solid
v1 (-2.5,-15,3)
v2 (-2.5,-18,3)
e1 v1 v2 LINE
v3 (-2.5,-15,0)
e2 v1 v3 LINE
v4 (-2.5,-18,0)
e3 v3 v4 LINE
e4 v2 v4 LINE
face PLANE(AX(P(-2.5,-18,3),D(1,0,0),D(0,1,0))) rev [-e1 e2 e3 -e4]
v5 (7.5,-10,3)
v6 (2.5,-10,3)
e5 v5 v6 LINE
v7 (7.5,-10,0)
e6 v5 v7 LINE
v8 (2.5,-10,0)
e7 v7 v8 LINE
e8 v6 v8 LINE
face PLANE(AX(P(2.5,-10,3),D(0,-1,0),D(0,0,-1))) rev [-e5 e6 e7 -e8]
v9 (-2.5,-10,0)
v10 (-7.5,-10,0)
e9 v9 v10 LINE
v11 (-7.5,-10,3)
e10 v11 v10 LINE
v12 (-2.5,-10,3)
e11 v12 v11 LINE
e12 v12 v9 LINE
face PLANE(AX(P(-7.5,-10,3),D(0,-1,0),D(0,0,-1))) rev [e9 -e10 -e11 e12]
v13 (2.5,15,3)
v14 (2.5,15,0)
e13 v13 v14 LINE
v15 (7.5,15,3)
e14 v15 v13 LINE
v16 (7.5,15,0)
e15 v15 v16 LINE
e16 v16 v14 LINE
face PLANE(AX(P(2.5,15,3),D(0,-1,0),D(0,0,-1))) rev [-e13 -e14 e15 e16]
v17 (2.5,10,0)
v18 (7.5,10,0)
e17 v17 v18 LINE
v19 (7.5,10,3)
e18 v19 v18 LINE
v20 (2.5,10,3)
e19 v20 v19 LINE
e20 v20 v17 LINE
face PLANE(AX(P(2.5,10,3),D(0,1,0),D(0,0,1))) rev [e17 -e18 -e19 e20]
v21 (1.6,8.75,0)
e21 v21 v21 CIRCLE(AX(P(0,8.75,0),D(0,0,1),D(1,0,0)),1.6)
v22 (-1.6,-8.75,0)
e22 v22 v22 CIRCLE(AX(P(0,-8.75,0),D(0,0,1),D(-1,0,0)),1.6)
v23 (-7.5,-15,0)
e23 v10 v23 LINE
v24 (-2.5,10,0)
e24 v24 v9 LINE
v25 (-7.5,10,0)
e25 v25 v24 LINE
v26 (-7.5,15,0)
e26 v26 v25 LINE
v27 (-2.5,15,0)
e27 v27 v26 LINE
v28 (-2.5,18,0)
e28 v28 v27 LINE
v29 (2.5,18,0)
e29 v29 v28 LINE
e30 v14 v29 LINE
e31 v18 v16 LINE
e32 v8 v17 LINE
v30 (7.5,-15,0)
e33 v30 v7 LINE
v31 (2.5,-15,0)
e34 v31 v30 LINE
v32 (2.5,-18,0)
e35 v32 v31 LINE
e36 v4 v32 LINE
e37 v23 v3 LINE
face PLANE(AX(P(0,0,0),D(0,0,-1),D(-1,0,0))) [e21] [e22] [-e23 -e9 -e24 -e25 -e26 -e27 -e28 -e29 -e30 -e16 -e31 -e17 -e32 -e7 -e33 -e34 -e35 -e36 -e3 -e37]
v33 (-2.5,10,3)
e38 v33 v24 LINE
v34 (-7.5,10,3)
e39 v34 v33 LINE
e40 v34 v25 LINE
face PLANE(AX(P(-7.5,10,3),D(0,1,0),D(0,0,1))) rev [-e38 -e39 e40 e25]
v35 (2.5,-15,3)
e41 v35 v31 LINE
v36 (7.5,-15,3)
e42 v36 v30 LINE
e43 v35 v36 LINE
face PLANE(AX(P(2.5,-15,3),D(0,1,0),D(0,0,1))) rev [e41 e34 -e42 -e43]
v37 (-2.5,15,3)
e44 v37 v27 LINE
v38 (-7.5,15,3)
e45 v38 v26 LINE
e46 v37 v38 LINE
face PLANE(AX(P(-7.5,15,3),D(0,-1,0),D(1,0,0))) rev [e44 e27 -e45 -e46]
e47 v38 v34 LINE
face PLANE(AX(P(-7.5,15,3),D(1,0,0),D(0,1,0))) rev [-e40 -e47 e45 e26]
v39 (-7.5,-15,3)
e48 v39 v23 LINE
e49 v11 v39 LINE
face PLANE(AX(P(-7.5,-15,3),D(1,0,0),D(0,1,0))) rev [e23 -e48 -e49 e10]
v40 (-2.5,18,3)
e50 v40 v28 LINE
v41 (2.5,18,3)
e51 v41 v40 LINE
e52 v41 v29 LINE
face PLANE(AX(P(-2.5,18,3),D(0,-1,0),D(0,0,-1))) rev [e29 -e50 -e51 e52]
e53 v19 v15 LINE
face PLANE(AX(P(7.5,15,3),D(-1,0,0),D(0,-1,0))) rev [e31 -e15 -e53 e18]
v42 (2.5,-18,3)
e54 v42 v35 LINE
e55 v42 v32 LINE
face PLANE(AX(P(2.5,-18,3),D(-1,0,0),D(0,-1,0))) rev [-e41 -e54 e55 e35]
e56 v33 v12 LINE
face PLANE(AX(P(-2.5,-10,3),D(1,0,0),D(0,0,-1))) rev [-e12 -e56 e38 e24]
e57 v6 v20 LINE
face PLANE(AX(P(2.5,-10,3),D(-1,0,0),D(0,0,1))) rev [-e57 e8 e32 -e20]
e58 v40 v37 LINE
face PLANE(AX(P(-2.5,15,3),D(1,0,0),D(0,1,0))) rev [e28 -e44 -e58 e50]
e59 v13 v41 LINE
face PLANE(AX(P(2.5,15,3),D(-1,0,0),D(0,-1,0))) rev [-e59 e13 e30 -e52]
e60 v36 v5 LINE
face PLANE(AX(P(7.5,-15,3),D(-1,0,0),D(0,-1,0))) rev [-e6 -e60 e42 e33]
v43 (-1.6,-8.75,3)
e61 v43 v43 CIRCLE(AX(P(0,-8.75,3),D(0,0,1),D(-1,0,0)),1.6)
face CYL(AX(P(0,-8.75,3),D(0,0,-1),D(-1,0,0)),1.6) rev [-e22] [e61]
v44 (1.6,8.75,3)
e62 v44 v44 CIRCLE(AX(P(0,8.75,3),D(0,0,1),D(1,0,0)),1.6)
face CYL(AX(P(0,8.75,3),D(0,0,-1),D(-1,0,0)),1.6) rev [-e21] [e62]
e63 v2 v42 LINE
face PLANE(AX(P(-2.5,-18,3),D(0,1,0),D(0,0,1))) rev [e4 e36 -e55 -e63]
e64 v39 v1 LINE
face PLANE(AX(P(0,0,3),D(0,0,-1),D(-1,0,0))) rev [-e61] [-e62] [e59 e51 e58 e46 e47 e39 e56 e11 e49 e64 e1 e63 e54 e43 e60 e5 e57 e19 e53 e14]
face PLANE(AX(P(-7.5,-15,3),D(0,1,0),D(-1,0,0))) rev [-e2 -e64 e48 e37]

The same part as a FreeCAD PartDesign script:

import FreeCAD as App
import Part
import Sketcher
from FreeCAD import Vector
Q = App.Units.Quantity

doc = App.newDocument("Part")
params = doc.addObject("Spreadsheet::Sheet", "Params")
for row, (alias, value) in enumerate([
    ("sketch1_diameter", "3.2 mm"),
    ("sketch1_width", "5 mm"),
    ("sketch1_height", "3 mm"),
    ("sketch1_height2", "20 mm"),
    ("pad1_length", "3 mm"),
], start=1):
    params.set(f"A{row}", alias)
    params.set(f"B{row}", "=" + value)
    params.setAlias(f"B{row}", alias)

body = doc.addObject("PartDesign::Body", "Body")

# Sketch on XY plane
sketch1 = body.newObject("Sketcher::SketchObject", "Sketch")
sketch1.AttachmentSupport = (doc.getObject("XY_Plane"), [""])
sketch1.MapMode = "FlatFace"
sketch1.addGeometry(Part.LineSegment(Vector(-2.5, 18, 0), Vector(-2.5, 15, 0)), False)
sketch1.addGeometry(Part.LineSegment(Vector(-2.5, 15, 0), Vector(-7.5, 15, 0)), False)
sketch1.addGeometry(Part.LineSegment(Vector(-7.5, 15, 0), Vector(-7.5, 10, 0)), False)
sketch1.addGeometry(Part.LineSegment(Vector(-7.5, 10, 0), Vector(-2.5, 10, 0)), False)
sketch1.addGeometry(Part.LineSegment(Vector(-2.5, 10, 0), Vector(-2.5, -10, 0)), False)
sketch1.addGeometry(Part.LineSegment(Vector(-2.5, -10, 0), Vector(-7.5, -10, 0)), False)
sketch1.addGeometry(Part.LineSegment(Vector(-7.5, -10, 0), Vector(-7.5, -15, 0)), False)
sketch1.addGeometry(Part.LineSegment(Vector(-7.5, -15, 0), Vector(-2.5, -15, 0)), False)
sketch1.addGeometry(Part.LineSegment(Vector(-2.5, -15, 0), Vector(-2.5, -18, 0)), False)
sketch1.addGeometry(Part.LineSegment(Vector(-2.5, -18, 0), Vector(2.5, -18, 0)), False)
sketch1.addGeometry(Part.LineSegment(Vector(2.5, -18, 0), Vector(2.5, -15, 0)), False)
sketch1.addGeometry(Part.LineSegment(Vector(2.5, -15, 0), Vector(7.5, -15, 0)), False)
sketch1.addGeometry(Part.LineSegment(Vector(7.5, -15, 0), Vector(7.5, -10, 0)), False)
sketch1.addGeometry(Part.LineSegment(Vector(7.5, -10, 0), Vector(2.5, -10, 0)), False)
sketch1.addGeometry(Part.LineSegment(Vector(2.5, -10, 0), Vector(2.5, 10, 0)), False)
sketch1.addGeometry(Part.LineSegment(Vector(2.5, 10, 0), Vector(7.5, 10, 0)), False)
sketch1.addGeometry(Part.LineSegment(Vector(7.5, 10, 0), Vector(7.5, 15, 0)), False)
sketch1.addGeometry(Part.LineSegment(Vector(7.5, 15, 0), Vector(2.5, 15, 0)), False)
sketch1.addGeometry(Part.LineSegment(Vector(2.5, 15, 0), Vector(2.5, 18, 0)), False)
sketch1.addGeometry(Part.LineSegment(Vector(2.5, 18, 0), Vector(-2.5, 18, 0)), False)
sketch1.addGeometry(Part.Circle(Vector(0, -8.75, 0), Vector(0, 0, 1), 1.6), False)
sketch1.addGeometry(Part.Circle(Vector(0, 8.75, 0), Vector(0, 0, 1), 1.6), False)
sketch1.addConstraint(Sketcher.Constraint("Coincident", 0, 2, 1, 1))
sketch1.addConstraint(Sketcher.Constraint("Coincident", 1, 2, 2, 1))
sketch1.addConstraint(Sketcher.Constraint("Coincident", 2, 2, 3, 1))
sketch1.addConstraint(Sketcher.Constraint("Coincident", 3, 2, 4, 1))
sketch1.addConstraint(Sketcher.Constraint("Coincident", 4, 2, 5, 1))
sketch1.addConstraint(Sketcher.Constraint("Coincident", 5, 2, 6, 1))
sketch1.addConstraint(Sketcher.Constraint("Coincident", 6, 2, 7, 1))
sketch1.addConstraint(Sketcher.Constraint("Coincident", 7, 2, 8, 1))
sketch1.addConstraint(Sketcher.Constraint("Coincident", 8, 2, 9, 1))
sketch1.addConstraint(Sketcher.Constraint("Coincident", 9, 2, 10, 1))
sketch1.addConstraint(Sketcher.Constraint("Coincident", 10, 2, 11, 1))
sketch1.addConstraint(Sketcher.Constraint("Coincident", 11, 2, 12, 1))
sketch1.addConstraint(Sketcher.Constraint("Coincident", 12, 2, 13, 1))
sketch1.addConstraint(Sketcher.Constraint("Coincident", 13, 2, 14, 1))
sketch1.addConstraint(Sketcher.Constraint("Coincident", 14, 2, 15, 1))
sketch1.addConstraint(Sketcher.Constraint("Coincident", 15, 2, 16, 1))
sketch1.addConstraint(Sketcher.Constraint("Coincident", 16, 2, 17, 1))
sketch1.addConstraint(Sketcher.Constraint("Coincident", 17, 2, 18, 1))
sketch1.addConstraint(Sketcher.Constraint("Coincident", 18, 2, 19, 1))
sketch1.addConstraint(Sketcher.Constraint("Coincident", 19, 2, 0, 1))
sketch1.addConstraint(Sketcher.Constraint("Vertical", 0))
sketch1.addConstraint(Sketcher.Constraint("Horizontal", 1))
sketch1.addConstraint(Sketcher.Constraint("Vertical", 2))
sketch1.addConstraint(Sketcher.Constraint("Horizontal", 3))
sketch1.addConstraint(Sketcher.Constraint("Vertical", 4))
sketch1.addConstraint(Sketcher.Constraint("Horizontal", 5))
sketch1.addConstraint(Sketcher.Constraint("Vertical", 6))
sketch1.addConstraint(Sketcher.Constraint("Horizontal", 7))
sketch1.addConstraint(Sketcher.Constraint("Vertical", 8))
sketch1.addConstraint(Sketcher.Constraint("Horizontal", 9))
sketch1.addConstraint(Sketcher.Constraint("Vertical", 10))
sketch1.addConstraint(Sketcher.Constraint("Horizontal", 11))
sketch1.addConstraint(Sketcher.Constraint("Vertical", 12))
sketch1.addConstraint(Sketcher.Constraint("Horizontal", 13))
sketch1.addConstraint(Sketcher.Constraint("Vertical", 14))
sketch1.addConstraint(Sketcher.Constraint("Horizontal", 15))
sketch1.addConstraint(Sketcher.Constraint("Vertical", 16))
sketch1.addConstraint(Sketcher.Constraint("Horizontal", 17))
sketch1.addConstraint(Sketcher.Constraint("Vertical", 18))
sketch1.addConstraint(Sketcher.Constraint("Horizontal", 19))
sketch1.addConstraint(Sketcher.Constraint("Equal", 20, 21))
sketch1.addConstraint(Sketcher.Constraint("Symmetric", 20, 3, 21, 3, -1, 1))
sketch1.addConstraint(Sketcher.Constraint("Symmetric", 0, 2, 10, 2, -1, 1))
sketch1.addConstraint(Sketcher.Constraint("Symmetric", 2, 2, 12, 2, -1, 1))
sketch1.addConstraint(Sketcher.Constraint("Symmetric", 4, 2, 14, 2, -1, 1))
sketch1.addConstraint(Sketcher.Constraint("Symmetric", 6, 2, 16, 2, -1, 1))
sketch1.addConstraint(Sketcher.Constraint("Symmetric", 8, 2, 18, 2, -1, 1))
sketch1.addConstraint(Sketcher.Constraint("Symmetric", 7, 2, 10, 2, -2))
sketch1.addConstraint(Sketcher.Constraint("Symmetric", 5, 2, 12, 2, -2))
sketch1.addConstraint(Sketcher.Constraint("PointOnObject", 20, 3, -2))
sketch1.addConstraint(Sketcher.Constraint("Vertical", 0, 2, 3, 2))
sketch1.addConstraint(Sketcher.Constraint("Equal", 7, 9))
sketch1.addConstraint(Sketcher.Constraint("Equal", 19, 2))
sketch1.addConstraint(Sketcher.Constraint("Diameter", 20, Q("3.2 mm")))
sketch1.addConstraint(Sketcher.Constraint("DistanceX", 1, 2, 1, 1, Q("5 mm")))
sketch1.addConstraint(Sketcher.Constraint("DistanceY", 0, 2, 0, 1, Q("3 mm")))
sketch1.addConstraint(Sketcher.Constraint("DistanceY", 4, 2, 4, 1, Q("20 mm")))
sketch1.addConstraint(Sketcher.Constraint("DistanceY", 20, 3, 21, 3, Q("17.5 mm")))
sketch1.setExpression("Constraints[53]", "Params.sketch1_diameter")
sketch1.setExpression("Constraints[54]", "Params.sketch1_width")
sketch1.setExpression("Constraints[55]", "Params.sketch1_height")
sketch1.setExpression("Constraints[56]", "Params.sketch1_height2")
pad1 = body.newObject("PartDesign::Pad", "Pad")
pad1.Profile = sketch1
pad1.setExpression("Length", "Params.pad1_length")

doc.recompute()
